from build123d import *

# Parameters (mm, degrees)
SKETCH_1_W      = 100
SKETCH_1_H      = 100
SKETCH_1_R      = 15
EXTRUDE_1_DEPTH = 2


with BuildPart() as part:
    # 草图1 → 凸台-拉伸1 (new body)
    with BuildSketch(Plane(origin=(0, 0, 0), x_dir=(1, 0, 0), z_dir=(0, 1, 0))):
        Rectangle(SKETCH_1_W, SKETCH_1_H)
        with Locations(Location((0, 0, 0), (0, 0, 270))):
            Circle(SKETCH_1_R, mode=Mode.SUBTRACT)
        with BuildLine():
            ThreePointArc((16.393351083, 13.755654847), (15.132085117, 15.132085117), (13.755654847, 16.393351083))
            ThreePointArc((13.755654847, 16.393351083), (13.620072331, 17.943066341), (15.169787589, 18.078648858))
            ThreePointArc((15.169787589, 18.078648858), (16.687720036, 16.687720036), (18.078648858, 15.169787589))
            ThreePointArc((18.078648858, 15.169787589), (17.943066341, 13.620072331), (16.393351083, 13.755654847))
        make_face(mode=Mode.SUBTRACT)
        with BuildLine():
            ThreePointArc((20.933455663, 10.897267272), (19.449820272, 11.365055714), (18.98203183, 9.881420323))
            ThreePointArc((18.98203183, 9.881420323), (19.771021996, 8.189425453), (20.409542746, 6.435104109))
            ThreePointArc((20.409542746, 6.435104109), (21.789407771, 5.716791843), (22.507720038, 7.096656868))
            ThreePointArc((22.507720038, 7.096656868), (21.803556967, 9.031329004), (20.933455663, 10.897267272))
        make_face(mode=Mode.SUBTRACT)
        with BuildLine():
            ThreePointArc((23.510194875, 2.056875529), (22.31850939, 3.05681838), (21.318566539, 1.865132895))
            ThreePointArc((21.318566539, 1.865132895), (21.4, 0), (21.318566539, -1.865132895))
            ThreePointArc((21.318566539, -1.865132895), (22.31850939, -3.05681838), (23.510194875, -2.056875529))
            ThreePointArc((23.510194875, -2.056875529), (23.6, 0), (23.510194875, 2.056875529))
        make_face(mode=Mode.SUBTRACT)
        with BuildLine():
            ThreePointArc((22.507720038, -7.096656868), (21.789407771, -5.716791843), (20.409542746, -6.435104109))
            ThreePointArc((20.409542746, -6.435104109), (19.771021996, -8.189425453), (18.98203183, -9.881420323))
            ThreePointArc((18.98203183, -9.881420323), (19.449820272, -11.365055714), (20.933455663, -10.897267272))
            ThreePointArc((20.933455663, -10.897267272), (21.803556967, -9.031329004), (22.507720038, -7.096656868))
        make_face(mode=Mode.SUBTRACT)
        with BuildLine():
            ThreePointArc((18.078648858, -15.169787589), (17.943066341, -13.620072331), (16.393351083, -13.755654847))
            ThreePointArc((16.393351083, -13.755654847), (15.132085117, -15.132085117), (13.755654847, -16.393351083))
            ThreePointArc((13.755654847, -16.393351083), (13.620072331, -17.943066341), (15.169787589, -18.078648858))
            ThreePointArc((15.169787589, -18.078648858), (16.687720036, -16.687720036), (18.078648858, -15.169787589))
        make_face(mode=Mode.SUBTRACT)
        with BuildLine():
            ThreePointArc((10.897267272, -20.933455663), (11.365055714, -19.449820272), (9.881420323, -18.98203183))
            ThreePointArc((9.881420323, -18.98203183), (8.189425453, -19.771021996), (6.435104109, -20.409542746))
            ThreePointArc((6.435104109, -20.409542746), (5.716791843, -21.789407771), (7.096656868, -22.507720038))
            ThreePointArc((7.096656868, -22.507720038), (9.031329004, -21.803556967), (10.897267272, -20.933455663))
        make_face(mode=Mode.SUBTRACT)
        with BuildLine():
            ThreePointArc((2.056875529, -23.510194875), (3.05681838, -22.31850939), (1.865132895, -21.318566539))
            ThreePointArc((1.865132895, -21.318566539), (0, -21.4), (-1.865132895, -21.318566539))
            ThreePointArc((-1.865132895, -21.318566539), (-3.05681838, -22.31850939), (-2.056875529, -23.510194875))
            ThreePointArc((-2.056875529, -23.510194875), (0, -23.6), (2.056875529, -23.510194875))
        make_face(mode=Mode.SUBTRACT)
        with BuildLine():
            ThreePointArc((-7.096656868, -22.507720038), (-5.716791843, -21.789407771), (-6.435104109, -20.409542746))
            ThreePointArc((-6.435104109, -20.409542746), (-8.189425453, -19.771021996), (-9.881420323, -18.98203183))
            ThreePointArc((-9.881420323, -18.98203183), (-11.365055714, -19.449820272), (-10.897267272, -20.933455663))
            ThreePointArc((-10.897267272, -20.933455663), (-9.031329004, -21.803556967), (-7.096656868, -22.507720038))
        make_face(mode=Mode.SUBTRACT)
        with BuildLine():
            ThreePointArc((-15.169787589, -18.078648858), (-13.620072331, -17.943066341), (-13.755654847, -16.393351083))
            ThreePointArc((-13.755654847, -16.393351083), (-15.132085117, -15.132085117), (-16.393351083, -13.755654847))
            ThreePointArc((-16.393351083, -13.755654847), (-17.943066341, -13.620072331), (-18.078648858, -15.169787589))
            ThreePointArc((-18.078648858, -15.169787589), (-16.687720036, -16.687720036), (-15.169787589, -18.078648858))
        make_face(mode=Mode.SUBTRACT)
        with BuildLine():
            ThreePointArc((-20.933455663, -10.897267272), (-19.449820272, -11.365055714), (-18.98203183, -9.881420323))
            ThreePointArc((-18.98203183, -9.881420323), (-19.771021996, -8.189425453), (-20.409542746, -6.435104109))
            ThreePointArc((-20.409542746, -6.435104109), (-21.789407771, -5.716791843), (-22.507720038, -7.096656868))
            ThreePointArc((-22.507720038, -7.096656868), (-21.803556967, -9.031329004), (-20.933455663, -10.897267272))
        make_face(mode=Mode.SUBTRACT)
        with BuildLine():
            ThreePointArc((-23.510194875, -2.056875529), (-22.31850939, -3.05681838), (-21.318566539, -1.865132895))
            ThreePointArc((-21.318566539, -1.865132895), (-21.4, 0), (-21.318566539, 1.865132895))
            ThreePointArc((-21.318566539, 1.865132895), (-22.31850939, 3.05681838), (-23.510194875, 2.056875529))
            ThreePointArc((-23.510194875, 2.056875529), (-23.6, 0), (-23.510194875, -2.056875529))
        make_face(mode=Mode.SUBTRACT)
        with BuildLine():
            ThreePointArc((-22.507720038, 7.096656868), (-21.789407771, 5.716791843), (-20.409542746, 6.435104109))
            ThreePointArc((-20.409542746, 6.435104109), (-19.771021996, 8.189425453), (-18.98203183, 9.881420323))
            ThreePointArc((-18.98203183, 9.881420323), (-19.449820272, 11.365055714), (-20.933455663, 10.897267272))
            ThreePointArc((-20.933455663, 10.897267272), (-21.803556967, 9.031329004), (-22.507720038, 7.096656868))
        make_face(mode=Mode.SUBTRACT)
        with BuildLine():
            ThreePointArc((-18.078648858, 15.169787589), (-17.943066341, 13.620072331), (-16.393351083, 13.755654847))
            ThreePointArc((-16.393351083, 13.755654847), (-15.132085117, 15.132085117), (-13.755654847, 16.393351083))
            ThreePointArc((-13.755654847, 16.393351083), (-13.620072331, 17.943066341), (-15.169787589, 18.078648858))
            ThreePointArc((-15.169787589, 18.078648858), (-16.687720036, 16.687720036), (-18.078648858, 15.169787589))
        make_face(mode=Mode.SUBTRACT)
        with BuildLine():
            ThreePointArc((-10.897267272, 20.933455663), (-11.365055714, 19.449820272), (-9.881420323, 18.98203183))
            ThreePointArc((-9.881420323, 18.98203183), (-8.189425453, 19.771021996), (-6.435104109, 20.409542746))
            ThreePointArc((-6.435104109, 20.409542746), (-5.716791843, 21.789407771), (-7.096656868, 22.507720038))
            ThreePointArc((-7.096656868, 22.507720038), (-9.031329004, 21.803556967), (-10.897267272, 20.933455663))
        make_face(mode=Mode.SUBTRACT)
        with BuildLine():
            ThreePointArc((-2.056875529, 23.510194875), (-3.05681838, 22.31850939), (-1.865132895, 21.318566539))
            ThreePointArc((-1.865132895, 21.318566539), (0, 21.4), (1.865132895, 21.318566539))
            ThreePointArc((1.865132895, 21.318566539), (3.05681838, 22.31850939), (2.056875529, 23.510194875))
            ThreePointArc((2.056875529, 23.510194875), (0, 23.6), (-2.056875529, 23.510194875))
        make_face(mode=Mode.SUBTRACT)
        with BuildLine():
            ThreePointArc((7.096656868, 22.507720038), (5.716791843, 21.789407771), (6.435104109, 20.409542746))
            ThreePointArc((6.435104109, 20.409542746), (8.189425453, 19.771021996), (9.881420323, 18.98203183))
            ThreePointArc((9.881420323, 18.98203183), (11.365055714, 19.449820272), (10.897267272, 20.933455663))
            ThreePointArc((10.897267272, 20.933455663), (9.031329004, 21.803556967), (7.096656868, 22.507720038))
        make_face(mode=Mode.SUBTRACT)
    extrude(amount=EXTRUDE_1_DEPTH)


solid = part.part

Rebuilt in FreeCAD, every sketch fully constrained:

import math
import FreeCAD as App
import Part
import Sketcher

V = App.Vector

doc = App.newDocument("Part")
body = doc.addObject("PartDesign::Body", "Body")

sketch1 = body.newObject("Sketcher::SketchObject", "Sketch")
sketch1.AttachmentSupport = (doc.getObject("XZ_Plane"), [""])
sketch1.MapMode = "FlatFace"
sketch1.addGeometry(Part.LineSegment(V(-50, -50, 0), V(-50, 50, 0)), False)
sketch1.addGeometry(Part.LineSegment(V(-50, 50, 0), V(50, 50, 0)), False)
sketch1.addGeometry(Part.LineSegment(V(50, 50, 0), V(50, -50, 0)), False)
sketch1.addGeometry(Part.LineSegment(V(50, -50, 0), V(-50, -50, 0)), False)
sketch1.addGeometry(Part.ArcOfCircle(Part.Circle(V(-14.5, 17.2, 0), V(0, 0, 1), 1.1), math.radians(-50), math.radians(130)), False)
sketch1.addGeometry(Part.ArcOfCircle(Part.Circle(V(0, 0, 0), V(0, 0, 1), 23.6), math.radians(130), math.radians(140)), False)
sketch1.addGeometry(Part.ArcOfCircle(Part.Circle(V(-17.2, 14.5, 0), V(0, 0, 1), 1.1), math.radians(140), math.radians(320)), False)
sketch1.addGeometry(Part.ArcOfCircle(Part.Circle(V(0, 0, 0), V(0, 0, 1), 21.4), math.radians(130), math.radians(140)), False)
sketch1.addGeometry(Part.ArcOfCircle(Part.Circle(V(-6.8, 21.5, 0), V(0, 0, 1), 1.1), math.radians(-72), math.radians(107)), False)
sketch1.addGeometry(Part.ArcOfCircle(Part.Circle(V(0, 0, 0), V(0, 0, 1), 23.6), math.radians(107.5), math.radians(117.5)), False)
sketch1.addGeometry(Part.ArcOfCircle(Part.Circle(V(-10.4, 20, 0), V(0, 0, 1), 1.1), math.radians(117), math.radians(298)), False)
sketch1.addGeometry(Part.ArcOfCircle(Part.Circle(V(0, 0, 0), V(0, 0, 1), 21.4), math.radians(107.5), math.radians(117.5)), False)
sketch1.addGeometry(Part.ArcOfCircle(Part.Circle(V(-20, 10.4, 0), V(0, 0, 1), 1.1), math.radians(-28), math.radians(153)), False)
sketch1.addGeometry(Part.ArcOfCircle(Part.Circle(V(0, 0, 0), V(0, 0, 1), 23.6), math.radians(152.5), math.radians(162.5)), False)
sketch1.addGeometry(Part.ArcOfCircle(Part.Circle(V(-21.5, 6.8, 0), V(0, 0, 1), 1.1), math.radians(163), math.radians(342)), False)
sketch1.addGeometry(Part.ArcOfCircle(Part.Circle(V(0, 0, 0), V(0, 0, 1), 21.4), math.radians(152.5), math.radians(162.5)), False)
sketch1.addGeometry(Part.ArcOfCircle(Part.Circle(V(2, 22.4, 0), V(0, 0, 1), 1.1), math.radians(-95), math.radians(85)), False)
sketch1.addGeometry(Part.ArcOfCircle(Part.Circle(V(0, 0, 0), V(0, 0, 1), 23.6), math.radians(85), math.radians(95)), False)
sketch1.addGeometry(Part.ArcOfCircle(Part.Circle(V(-2, 22.4, 0), V(0, 0, 1), 1.1), math.radians(95), math.radians(275)), False)
sketch1.addGeometry(Part.ArcOfCircle(Part.Circle(V(0, 0, 0), V(0, 0, 1), 21.4), math.radians(85), math.radians(95)), False)
sketch1.addGeometry(Part.ArcOfCircle(Part.Circle(V(10.4, 20, 0), V(0, 0, 1), 1.1), math.radians(-118), math.radians(63)), False)
sketch1.addGeometry(Part.ArcOfCircle(Part.Circle(V(0, 0, 0), V(0, 0, 1), 23.6), math.radians(62.5), math.radians(72.5)), False)
sketch1.addGeometry(Part.ArcOfCircle(Part.Circle(V(6.8, 21.5, 0), V(0, 0, 1), 1.1), math.radians(73), math.radians(252)), False)
sketch1.addGeometry(Part.ArcOfCircle(Part.Circle(V(0, 0, 0), V(0, 0, 1), 21.4), math.radians(62.5), math.radians(72.5)), False)
sketch1.addGeometry(Part.ArcOfCircle(Part.Circle(V(17.2, 14.5, 0), V(0, 0, 1), 1.1), math.radians(-140), math.radians(40)), False)
sketch1.addGeometry(Part.ArcOfCircle(Part.Circle(V(0, 0, 0), V(0, 0, 1), 23.6), math.radians(40), math.radians(50)), False)
sketch1.addGeometry(Part.ArcOfCircle(Part.Circle(V(14.5, 17.2, 0), V(0, 0, 1), 1.1), math.radians(50), math.radians(230)), False)
sketch1.addGeometry(Part.ArcOfCircle(Part.Circle(V(0, 0, 0), V(0, 0, 1), 21.4), math.radians(40), math.radians(50)), False)
sketch1.addGeometry(Part.ArcOfCircle(Part.Circle(V(21.5, 6.8, 0), V(0, 0, 1), 1.1), math.radians(-162), math.radians(17)), False)
sketch1.addGeometry(Part.ArcOfCircle(Part.Circle(V(0, 0, 0), V(0, 0, 1), 23.6), math.radians(17.5), math.radians(27.5)), False)
sketch1.addGeometry(Part.ArcOfCircle(Part.Circle(V(20, 10.4, 0), V(0, 0, 1), 1.1), math.radians(27), math.radians(208)), False)
sketch1.addGeometry(Part.ArcOfCircle(Part.Circle(V(0, 0, 0), V(0, 0, 1), 21.4), math.radians(17.5), math.radians(27.5)), False)
sketch1.addGeometry(Part.ArcOfCircle(Part.Circle(V(-22.4, 2, 0), V(0, 0, 1), 1.1), math.radians(-5), math.radians(175)), False)
sketch1.addGeometry(Part.ArcOfCircle(Part.Circle(V(0, 0, 0), V(0, 0, 1), 23.6), math.radians(175), math.radians(185)), False)
sketch1.addGeometry(Part.ArcOfCircle(Part.Circle(V(-22.4, -2, 0), V(0, 0, 1), 1.1), math.radians(-175), math.radians(5)), False)
sketch1.addGeometry(Part.ArcOfCircle(Part.Circle(V(0, 0, 0), V(0, 0, 1), 21.4), math.radians(175), math.radians(185)), False)
sketch1.addGeometry(Part.ArcOfCircle(Part.Circle(V(-21.5, -6.8, 0), V(0, 0, 1), 1.1), math.radians(18), math.radians(197)), False)
sketch1.addGeometry(Part.ArcOfCircle(Part.Circle(V(0, 0, 0), V(0, 0, 1), 23.6), math.radians(-162.5), math.radians(-152.5)), False)
sketch1.addGeometry(Part.ArcOfCircle(Part.Circle(V(-20, -10.4, 0), V(0, 0, 1), 1.1), math.radians(-153), math.radians(28)), False)
sketch1.addGeometry(Part.ArcOfCircle(Part.Circle(V(0, 0, 0), V(0, 0, 1), 21.4), math.radians(-162.5), math.radians(-152.5)), False)
sketch1.addGeometry(Part.ArcOfCircle(Part.Circle(V(-17.2, -14.5, 0), V(0, 0, 1), 1.1), math.radians(40), math.radians(220)), False)
sketch1.addGeometry(Part.ArcOfCircle(Part.Circle(V(0, 0, 0), V(0, 0, 1), 23.6), math.radians(-140), math.radians(-130)), False)
sketch1.addGeometry(Part.ArcOfCircle(Part.Circle(V(-14.5, -17.2, 0), V(0, 0, 1), 1.1), math.radians(-130), math.radians(50)), False)
sketch1.addGeometry(Part.ArcOfCircle(Part.Circle(V(0, 0, 0), V(0, 0, 1), 21.4), math.radians(-140), math.radians(-130)), False)
sketch1.addGeometry(Part.ArcOfCircle(Part.Circle(V(-10.4, -20, 0), V(0, 0, 1), 1.1), math.radians(62), math.radians(243)), False)
sketch1.addGeometry(Part.ArcOfCircle(Part.Circle(V(0, 0, 0), V(0, 0, 1), 23.6), math.radians(-117.5), math.radians(-107.5)), False)
sketch1.addGeometry(Part.ArcOfCircle(Part.Circle(V(-6.8, -21.5, 0), V(0, 0, 1), 1.1), math.radians(-107), math.radians(72)), False)
sketch1.addGeometry(Part.ArcOfCircle(Part.Circle(V(0, 0, 0), V(0, 0, 1), 21.4), math.radians(-117.5), math.radians(-107.5)), False)
sketch1.addGeometry(Part.Circle(V(0, 0, 0), V(0, 0, 1), 15), False)
sketch1.addGeometry(Part.ArcOfCircle(Part.Circle(V(22.4, -2, 0), V(0, 0, 1), 1.1), math.radians(175), math.radians(355)), False)
sketch1.addGeometry(Part.ArcOfCircle(Part.Circle(V(0, 0, 0), V(0, 0, 1), 23.6), math.radians(-5), math.radians(5)), False)
sketch1.addGeometry(Part.ArcOfCircle(Part.Circle(V(22.4, 2, 0), V(0, 0, 1), 1.1), math.radians(5), math.radians(185)), False)
sketch1.addGeometry(Part.ArcOfCircle(Part.Circle(V(0, 0, 0), V(0, 0, 1), 21.4), math.radians(-5), math.radians(5)), False)
sketch1.addGeometry(Part.ArcOfCircle(Part.Circle(V(20, -10.4, 0), V(0, 0, 1), 1.1), math.radians(152), math.radians(333)), False)
sketch1.addGeometry(Part.ArcOfCircle(Part.Circle(V(0, 0, 0), V(0, 0, 1), 23.6), math.radians(-27.5), math.radians(-17.5)), False)
sketch1.addGeometry(Part.ArcOfCircle(Part.Circle(V(21.5, -6.8, 0), V(0, 0, 1), 1.1), math.radians(-17), math.radians(162)), False)
sketch1.addGeometry(Part.ArcOfCircle(Part.Circle(V(0, 0, 0), V(0, 0, 1), 21.4), math.radians(-27.5), math.radians(-17.5)), False)
sketch1.addGeometry(Part.ArcOfCircle(Part.Circle(V(-2, -22.4, 0), V(0, 0, 1), 1.1), math.radians(85), math.radians(265)), False)
sketch1.addGeometry(Part.ArcOfCircle(Part.Circle(V(0, 0, 0), V(0, 0, 1), 23.6), math.radians(-95), math.radians(-85)), False)
sketch1.addGeometry(Part.ArcOfCircle(Part.Circle(V(2, -22.4, 0), V(0, 0, 1), 1.1), math.radians(-85), math.radians(95)), False)
sketch1.addGeometry(Part.ArcOfCircle(Part.Circle(V(0, 0, 0), V(0, 0, 1), 21.4), math.radians(-95), math.radians(-85)), False)
sketch1.addGeometry(Part.ArcOfCircle(Part.Circle(V(6.8, -21.5, 0), V(0, 0, 1), 1.1), math.radians(108), math.radians(287)), False)
sketch1.addGeometry(Part.ArcOfCircle(Part.Circle(V(0, 0, 0), V(0, 0, 1), 23.6), math.radians(-72.5), math.radians(-62.5)), False)
sketch1.addGeometry(Part.ArcOfCircle(Part.Circle(V(10.4, -20, 0), V(0, 0, 1), 1.1), math.radians(-63), math.radians(118)), False)
sketch1.addGeometry(Part.ArcOfCircle(Part.Circle(V(0, 0, 0), V(0, 0, 1), 21.4), math.radians(-72.5), math.radians(-62.5)), False)
sketch1.addGeometry(Part.ArcOfCircle(Part.Circle(V(17.2, -14.5, 0), V(0, 0, 1), 1.1), math.radians(-40), math.radians(140)), False)
sketch1.addGeometry(Part.ArcOfCircle(Part.Circle(V(0, 0, 0), V(0, 0, 1), 21.4), math.radians(-50), math.radians(-40)), False)
sketch1.addGeometry(Part.ArcOfCircle(Part.Circle(V(14.5, -17.2, 0), V(0, 0, 1), 1.1), math.radians(130), math.radians(310)), False)
sketch1.addGeometry(Part.ArcOfCircle(Part.Circle(V(0, 0, 0), V(0, 0, 1), 23.6), math.radians(-50), math.radians(-40)), False)
sketch1.addConstraint(Sketcher.Constraint("Coincident", 0, 2, 1, 1))
sketch1.addConstraint(Sketcher.Constraint("Coincident", 1, 2, 2, 1))
sketch1.addConstraint(Sketcher.Constraint("Coincident", 2, 2, 3, 1))
sketch1.addConstraint(Sketcher.Constraint("Coincident", 3, 2, 0, 1))
sketch1.addConstraint(Sketcher.Constraint("Tangent", 4, 2, 5, 1))
sketch1.addConstraint(Sketcher.Constraint("Tangent", 5, 2, 6, 1))
sketch1.addConstraint(Sketcher.Constraint("Tangent", 6, 2, 7, 2))
sketch1.addConstraint(Sketcher.Constraint("Tangent", 7, 1, 4, 1))
sketch1.addConstraint(Sketcher.Constraint("Tangent", 8, 2, 9, 1))
sketch1.addConstraint(Sketcher.Constraint("Tangent", 9, 2, 10, 1))
sketch1.addConstraint(Sketcher.Constraint("Tangent", 10, 2, 11, 2))
sketch1.addConstraint(Sketcher.Constraint("Tangent", 11, 1, 8, 1))
sketch1.addConstraint(Sketcher.Constraint("Tangent", 12, 2, 13, 1))
sketch1.addConstraint(Sketcher.Constraint("Tangent", 13, 2, 14, 1))
sketch1.addConstraint(Sketcher.Constraint("Tangent", 14, 2, 15, 2))
sketch1.addConstraint(Sketcher.Constraint("Tangent", 15, 1, 12, 1))
sketch1.addConstraint(Sketcher.Constraint("Tangent", 16, 2, 17, 1))
sketch1.addConstraint(Sketcher.Constraint("Tangent", 17, 2, 18, 1))
sketch1.addConstraint(Sketcher.Constraint("Tangent", 18, 2, 19, 2))
sketch1.addConstraint(Sketcher.Constraint("Tangent", 19, 1, 16, 1))
sketch1.addConstraint(Sketcher.Constraint("Tangent", 20, 2, 21, 1))
sketch1.addConstraint(Sketcher.Constraint("Tangent", 21, 2, 22, 1))
sketch1.addConstraint(Sketcher.Constraint("Tangent", 22, 2, 23, 2))
sketch1.addConstraint(Sketcher.Constraint("Tangent", 23, 1, 20, 1))
sketch1.addConstraint(Sketcher.Constraint("Tangent", 24, 2, 25, 1))
sketch1.addConstraint(Sketcher.Constraint("Tangent", 25, 2, 26, 1))
sketch1.addConstraint(Sketcher.Constraint("Tangent", 26, 2, 27, 2))
sketch1.addConstraint(Sketcher.Constraint("Tangent", 27, 1, 24, 1))
sketch1.addConstraint(Sketcher.Constraint("Tangent", 28, 2, 29, 1))
sketch1.addConstraint(Sketcher.Constraint("Tangent", 29, 2, 30, 1))
sketch1.addConstraint(Sketcher.Constraint("Tangent", 30, 2, 31, 2))
sketch1.addConstraint(Sketcher.Constraint("Tangent", 31, 1, 28, 1))
sketch1.addConstraint(Sketcher.Constraint("Tangent", 32, 2, 33, 1))
sketch1.addConstraint(Sketcher.Constraint("Tangent", 33, 2, 34, 1))
sketch1.addConstraint(Sketcher.Constraint("Tangent", 34, 2, 35, 2))
sketch1.addConstraint(Sketcher.Constraint("Tangent", 35, 1, 32, 1))
sketch1.addConstraint(Sketcher.Constraint("Tangent", 36, 2, 37, 1))
sketch1.addConstraint(Sketcher.Constraint("Tangent", 37, 2, 38, 1))
sketch1.addConstraint(Sketcher.Constraint("Tangent", 38, 2, 39, 2))
sketch1.addConstraint(Sketcher.Constraint("Tangent", 39, 1, 36, 1))
sketch1.addConstraint(Sketcher.Constraint("Tangent", 40, 2, 41, 1))
sketch1.addConstraint(Sketcher.Constraint("Tangent", 41, 2, 42, 1))
sketch1.addConstraint(Sketcher.Constraint("Tangent", 42, 2, 43, 2))
sketch1.addConstraint(Sketcher.Constraint("Tangent", 43, 1, 40, 1))
sketch1.addConstraint(Sketcher.Constraint("Tangent", 44, 2, 45, 1))
sketch1.addConstraint(Sketcher.Constraint("Tangent", 45, 2, 46, 1))
sketch1.addConstraint(Sketcher.Constraint("Tangent", 46, 2, 47, 2))
sketch1.addConstraint(Sketcher.Constraint("Tangent", 47, 1, 44, 1))
sketch1.addConstraint(Sketcher.Constraint("Tangent", 49, 2, 50, 1))
sketch1.addConstraint(Sketcher.Constraint("Tangent", 50, 2, 51, 1))
sketch1.addConstraint(Sketcher.Constraint("Tangent", 51, 2, 52, 2))
sketch1.addConstraint(Sketcher.Constraint("Tangent", 52, 1, 49, 1))
sketch1.addConstraint(Sketcher.Constraint("Tangent", 53, 2, 54, 1))
sketch1.addConstraint(Sketcher.Constraint("Tangent", 54, 2, 55, 1))
sketch1.addConstraint(Sketcher.Constraint("Tangent", 55, 2, 56, 2))
sketch1.addConstraint(Sketcher.Constraint("Tangent", 56, 1, 53, 1))
sketch1.addConstraint(Sketcher.Constraint("Tangent", 57, 2, 58, 1))
sketch1.addConstraint(Sketcher.Constraint("Tangent", 58, 2, 59, 1))
sketch1.addConstraint(Sketcher.Constraint("Tangent", 59, 2, 60, 2))
sketch1.addConstraint(Sketcher.Constraint("Tangent", 60, 1, 57, 1))
sketch1.addConstraint(Sketcher.Constraint("Tangent", 61, 2, 62, 1))
sketch1.addConstraint(Sketcher.Constraint("Tangent", 62, 2, 63, 1))
sketch1.addConstraint(Sketcher.Constraint("Tangent", 63, 2, 64, 2))
sketch1.addConstraint(Sketcher.Constraint("Tangent", 64, 1, 61, 1))
sketch1.addConstraint(Sketcher.Constraint("Tangent", 65, 2, 66, 2))
sketch1.addConstraint(Sketcher.Constraint("Tangent", 66, 1, 67, 1))
sketch1.addConstraint(Sketcher.Constraint("Tangent", 67, 2, 68, 1))
sketch1.addConstraint(Sketcher.Constraint("Tangent", 68, 2, 65, 1))
sketch1.addConstraint(Sketcher.Constraint("Vertical", 0))
sketch1.addConstraint(Sketcher.Constraint("Horizontal", 1))
sketch1.addConstraint(Sketcher.Constraint("Vertical", 2))
sketch1.addConstraint(Sketcher.Constraint("Horizontal", 3))
sketch1.addConstraint(Sketcher.Constraint("Coincident", 5, 3, -1, 1))
sketch1.addConstraint(Sketcher.Constraint("Coincident", 7, 3, -1, 1))
sketch1.addConstraint(Sketcher.Constraint("Coincident", 9, 3, -1, 1))
sketch1.addConstraint(Sketcher.Constraint("Coincident", 11, 3, -1, 1))
sketch1.addConstraint(Sketcher.Constraint("Coincident", 13, 3, -1, 1))
sketch1.addConstraint(Sketcher.Constraint("Coincident", 15, 3, -1, 1))
sketch1.addConstraint(Sketcher.Constraint("Coincident", 17, 3, -1, 1))
sketch1.addConstraint(Sketcher.Constraint("Coincident", 19, 3, -1, 1))
sketch1.addConstraint(Sketcher.Constraint("Coincident", 21, 3, -1, 1))
sketch1.addConstraint(Sketcher.Constraint("Coincident", 23, 3, -1, 1))
sketch1.addConstraint(Sketcher.Constraint("Coincident", 25, 3, -1, 1))
sketch1.addConstraint(Sketcher.Constraint("Coincident", 27, 3, -1, 1))
sketch1.addConstraint(Sketcher.Constraint("Coincident", 29, 3, -1, 1))
sketch1.addConstraint(Sketcher.Constraint("Coincident", 31, 3, -1, 1))
sketch1.addConstraint(Sketcher.Constraint("Coincident", 33, 3, -1, 1))
sketch1.addConstraint(Sketcher.Constraint("Coincident", 35, 3, -1, 1))
sketch1.addConstraint(Sketcher.Constraint("Coincident", 37, 3, -1, 1))
sketch1.addConstraint(Sketcher.Constraint("Coincident", 39, 3, -1, 1))
sketch1.addConstraint(Sketcher.Constraint("Coincident", 41, 3, -1, 1))
sketch1.addConstraint(Sketcher.Constraint("Coincident", 43, 3, -1, 1))
sketch1.addConstraint(Sketcher.Constraint("Coincident", 45, 3, -1, 1))
sketch1.addConstraint(Sketcher.Constraint("Coincident", 47, 3, -1, 1))
sketch1.addConstraint(Sketcher.Constraint("Coincident", 48, 3, -1, 1))
sketch1.addConstraint(Sketcher.Constraint("Coincident", 50, 3, -1, 1))
sketch1.addConstraint(Sketcher.Constraint("Coincident", 52, 3, -1, 1))
sketch1.addConstraint(Sketcher.Constraint("Coincident", 54, 3, -1, 1))
sketch1.addConstraint(Sketcher.Constraint("Coincident", 56, 3, -1, 1))
sketch1.addConstraint(Sketcher.Constraint("Coincident", 58, 3, -1, 1))
sketch1.addConstraint(Sketcher.Constraint("Coincident", 60, 3, -1, 1))
sketch1.addConstraint(Sketcher.Constraint("Coincident", 62, 3, -1, 1))
sketch1.addConstraint(Sketcher.Constraint("Coincident", 64, 3, -1, 1))
sketch1.addConstraint(Sketcher.Constraint("Coincident", 66, 3, -1, 1))
sketch1.addConstraint(Sketcher.Constraint("Coincident", 68, 3, -1, 1))
sketch1.addConstraint(Sketcher.Constraint("Equal", 6, 8))
sketch1.addConstraint(Sketcher.Constraint("Equal", 5, 9))
sketch1.addConstraint(Sketcher.Constraint("Equal", 10, 12))
sketch1.addConstraint(Sketcher.Constraint("Equal", 9, 13))
sketch1.addConstraint(Sketcher.Constraint("Equal", 14, 16))
sketch1.addConstraint(Sketcher.Constraint("Equal", 13, 17))
sketch1.addConstraint(Sketcher.Constraint("Equal", 18, 20))
sketch1.addConstraint(Sketcher.Constraint("Equal", 17, 21))
sketch1.addConstraint(Sketcher.Constraint("Equal", 22, 24))
sketch1.addConstraint(Sketcher.Constraint("Equal", 21, 25))
sketch1.addConstraint(Sketcher.Constraint("Equal", 26, 28))
sketch1.addConstraint(Sketcher.Constraint("Equal", 25, 29))
sketch1.addConstraint(Sketcher.Constraint("Equal", 30, 32))
sketch1.addConstraint(Sketcher.Constraint("Equal", 29, 33))
sketch1.addConstraint(Sketcher.Constraint("Equal", 34, 36))
sketch1.addConstraint(Sketcher.Constraint("Equal", 33, 37))
sketch1.addConstraint(Sketcher.Constraint("Equal", 38, 40))
sketch1.addConstraint(Sketcher.Constraint("Equal", 37, 41))
sketch1.addConstraint(Sketcher.Constraint("Equal", 42, 44))
sketch1.addConstraint(Sketcher.Constraint("Equal", 41, 45))
sketch1.addConstraint(Sketcher.Constraint("Equal", 46, 49))
sketch1.addConstraint(Sketcher.Constraint("Equal", 45, 50))
sketch1.addConstraint(Sketcher.Constraint("Equal", 51, 53))
sketch1.addConstraint(Sketcher.Constraint("Equal", 50, 54))
sketch1.addConstraint(Sketcher.Constraint("Equal", 55, 57))
sketch1.addConstraint(Sketcher.Constraint("Equal", 54, 58))
sketch1.addConstraint(Sketcher.Constraint("Equal", 59, 61))
sketch1.addConstraint(Sketcher.Constraint("Equal", 58, 62))
sketch1.addConstraint(Sketcher.Constraint("Equal", 63, 65))
sketch1.addConstraint(Sketcher.Constraint("Equal", 64, 66))
sketch1.addConstraint(Sketcher.Constraint("Symmetric", 0, 2, 2, 2, -1, 1))
sketch1.addConstraint(Sketcher.Constraint("Horizontal", 16, 3, 18, 3))
sketch1.addConstraint(Sketcher.Constraint("Horizontal", 10, 3, 20, 3))
sketch1.addConstraint(Sketcher.Constraint("Horizontal", 8, 3, 22, 3))
sketch1.addConstraint(Sketcher.Constraint("Horizontal", 6, 3, 24, 3))
sketch1.addConstraint(Sketcher.Constraint("Horizontal", 4, 3, 26, 3))
sketch1.addConstraint(Sketcher.Constraint("Horizontal", 14, 3, 28, 3))
sketch1.addConstraint(Sketcher.Constraint("Horizontal", 12, 3, 30, 3))
sketch1.addConstraint(Sketcher.Constraint("Horizontal", 34, 3, 49, 3))
sketch1.addConstraint(Sketcher.Constraint("Horizontal", 32, 3, 51, 3))
sketch1.addConstraint(Sketcher.Constraint("Horizontal", 38, 3, 53, 3))
sketch1.addConstraint(Sketcher.Constraint("Horizontal", 36, 3, 55, 3))
sketch1.addConstraint(Sketcher.Constraint("Horizontal", 57, 3, 59, 3))
sketch1.addConstraint(Sketcher.Constraint("Horizontal", 46, 3, 61, 3))
sketch1.addConstraint(Sketcher.Constraint("Horizontal", 44, 3, 63, 3))
sketch1.addConstraint(Sketcher.Constraint("Horizontal", 40, 3, 65, 3))
sketch1.addConstraint(Sketcher.Constraint("Horizontal", 42, 3, 67, 3))
sketch1.addConstraint(Sketcher.Constraint("Vertical", 32, 3, 34, 3))
sketch1.addConstraint(Sketcher.Constraint("Vertical", 14, 3, 36, 3))
sketch1.addConstraint(Sketcher.Constraint("Vertical", 12, 3, 38, 3))
sketch1.addConstraint(Sketcher.Constraint("Vertical", 6, 3, 40, 3))
sketch1.addConstraint(Sketcher.Constraint("Vertical", 4, 3, 42, 3))
sketch1.addConstraint(Sketcher.Constraint("Vertical", 10, 3, 44, 3))
sketch1.addConstraint(Sketcher.Constraint("Vertical", 8, 3, 46, 3))
sketch1.addConstraint(Sketcher.Constraint("Vertical", 18, 3, 57, 3))
sketch1.addConstraint(Sketcher.Constraint("Equal", 3, 0))
sketch1.addConstraint(Sketcher.Constraint("Diameter", 48, 30.0))
sketch1.addConstraint(Sketcher.Constraint("Radius", 4, 1.1))
sketch1.addConstraint(Sketcher.Constraint("Radius", 5, 23.6))
sketch1.addConstraint(Sketcher.Constraint("DistanceX", 1, 1, 1, 2, 100.0))
sketch1.addConstraint(Sketcher.Constraint("DistanceY", -1, 1, 4, 3, 17.236))
sketch1.addConstraint(Sketcher.Constraint("DistanceX", 6, 3, -1, 1, 17.236))
sketch1.addConstraint(Sketcher.Constraint("DistanceX", 8, 3, -1, 1, 6.76588))
sketch1.addConstraint(Sketcher.Constraint("DistanceX", 14, 3, -1, 1, 21.458631))
sketch1.addConstraint(Sketcher.Constraint("DistanceY", -1, 1, 16, 3, 22.414381))
sketch1.addConstraint(Sketcher.Constraint("DistanceX", 32, 3, -1, 1, 22.414381))
sketch1.addConstraint(Sketcher.Constraint("DistanceX", 10, 2, -1, 1, 9.88142))
sketch1.addConstraint(Sketcher.Constraint("DistanceX", 15, 1, -1, 1, 18.982032))
pad1 = body.newObject("PartDesign::Pad", "Pad")
pad1.Profile = sketch1
pad1.Length = 2
pad1.Reversed = True

doc.recompute()
